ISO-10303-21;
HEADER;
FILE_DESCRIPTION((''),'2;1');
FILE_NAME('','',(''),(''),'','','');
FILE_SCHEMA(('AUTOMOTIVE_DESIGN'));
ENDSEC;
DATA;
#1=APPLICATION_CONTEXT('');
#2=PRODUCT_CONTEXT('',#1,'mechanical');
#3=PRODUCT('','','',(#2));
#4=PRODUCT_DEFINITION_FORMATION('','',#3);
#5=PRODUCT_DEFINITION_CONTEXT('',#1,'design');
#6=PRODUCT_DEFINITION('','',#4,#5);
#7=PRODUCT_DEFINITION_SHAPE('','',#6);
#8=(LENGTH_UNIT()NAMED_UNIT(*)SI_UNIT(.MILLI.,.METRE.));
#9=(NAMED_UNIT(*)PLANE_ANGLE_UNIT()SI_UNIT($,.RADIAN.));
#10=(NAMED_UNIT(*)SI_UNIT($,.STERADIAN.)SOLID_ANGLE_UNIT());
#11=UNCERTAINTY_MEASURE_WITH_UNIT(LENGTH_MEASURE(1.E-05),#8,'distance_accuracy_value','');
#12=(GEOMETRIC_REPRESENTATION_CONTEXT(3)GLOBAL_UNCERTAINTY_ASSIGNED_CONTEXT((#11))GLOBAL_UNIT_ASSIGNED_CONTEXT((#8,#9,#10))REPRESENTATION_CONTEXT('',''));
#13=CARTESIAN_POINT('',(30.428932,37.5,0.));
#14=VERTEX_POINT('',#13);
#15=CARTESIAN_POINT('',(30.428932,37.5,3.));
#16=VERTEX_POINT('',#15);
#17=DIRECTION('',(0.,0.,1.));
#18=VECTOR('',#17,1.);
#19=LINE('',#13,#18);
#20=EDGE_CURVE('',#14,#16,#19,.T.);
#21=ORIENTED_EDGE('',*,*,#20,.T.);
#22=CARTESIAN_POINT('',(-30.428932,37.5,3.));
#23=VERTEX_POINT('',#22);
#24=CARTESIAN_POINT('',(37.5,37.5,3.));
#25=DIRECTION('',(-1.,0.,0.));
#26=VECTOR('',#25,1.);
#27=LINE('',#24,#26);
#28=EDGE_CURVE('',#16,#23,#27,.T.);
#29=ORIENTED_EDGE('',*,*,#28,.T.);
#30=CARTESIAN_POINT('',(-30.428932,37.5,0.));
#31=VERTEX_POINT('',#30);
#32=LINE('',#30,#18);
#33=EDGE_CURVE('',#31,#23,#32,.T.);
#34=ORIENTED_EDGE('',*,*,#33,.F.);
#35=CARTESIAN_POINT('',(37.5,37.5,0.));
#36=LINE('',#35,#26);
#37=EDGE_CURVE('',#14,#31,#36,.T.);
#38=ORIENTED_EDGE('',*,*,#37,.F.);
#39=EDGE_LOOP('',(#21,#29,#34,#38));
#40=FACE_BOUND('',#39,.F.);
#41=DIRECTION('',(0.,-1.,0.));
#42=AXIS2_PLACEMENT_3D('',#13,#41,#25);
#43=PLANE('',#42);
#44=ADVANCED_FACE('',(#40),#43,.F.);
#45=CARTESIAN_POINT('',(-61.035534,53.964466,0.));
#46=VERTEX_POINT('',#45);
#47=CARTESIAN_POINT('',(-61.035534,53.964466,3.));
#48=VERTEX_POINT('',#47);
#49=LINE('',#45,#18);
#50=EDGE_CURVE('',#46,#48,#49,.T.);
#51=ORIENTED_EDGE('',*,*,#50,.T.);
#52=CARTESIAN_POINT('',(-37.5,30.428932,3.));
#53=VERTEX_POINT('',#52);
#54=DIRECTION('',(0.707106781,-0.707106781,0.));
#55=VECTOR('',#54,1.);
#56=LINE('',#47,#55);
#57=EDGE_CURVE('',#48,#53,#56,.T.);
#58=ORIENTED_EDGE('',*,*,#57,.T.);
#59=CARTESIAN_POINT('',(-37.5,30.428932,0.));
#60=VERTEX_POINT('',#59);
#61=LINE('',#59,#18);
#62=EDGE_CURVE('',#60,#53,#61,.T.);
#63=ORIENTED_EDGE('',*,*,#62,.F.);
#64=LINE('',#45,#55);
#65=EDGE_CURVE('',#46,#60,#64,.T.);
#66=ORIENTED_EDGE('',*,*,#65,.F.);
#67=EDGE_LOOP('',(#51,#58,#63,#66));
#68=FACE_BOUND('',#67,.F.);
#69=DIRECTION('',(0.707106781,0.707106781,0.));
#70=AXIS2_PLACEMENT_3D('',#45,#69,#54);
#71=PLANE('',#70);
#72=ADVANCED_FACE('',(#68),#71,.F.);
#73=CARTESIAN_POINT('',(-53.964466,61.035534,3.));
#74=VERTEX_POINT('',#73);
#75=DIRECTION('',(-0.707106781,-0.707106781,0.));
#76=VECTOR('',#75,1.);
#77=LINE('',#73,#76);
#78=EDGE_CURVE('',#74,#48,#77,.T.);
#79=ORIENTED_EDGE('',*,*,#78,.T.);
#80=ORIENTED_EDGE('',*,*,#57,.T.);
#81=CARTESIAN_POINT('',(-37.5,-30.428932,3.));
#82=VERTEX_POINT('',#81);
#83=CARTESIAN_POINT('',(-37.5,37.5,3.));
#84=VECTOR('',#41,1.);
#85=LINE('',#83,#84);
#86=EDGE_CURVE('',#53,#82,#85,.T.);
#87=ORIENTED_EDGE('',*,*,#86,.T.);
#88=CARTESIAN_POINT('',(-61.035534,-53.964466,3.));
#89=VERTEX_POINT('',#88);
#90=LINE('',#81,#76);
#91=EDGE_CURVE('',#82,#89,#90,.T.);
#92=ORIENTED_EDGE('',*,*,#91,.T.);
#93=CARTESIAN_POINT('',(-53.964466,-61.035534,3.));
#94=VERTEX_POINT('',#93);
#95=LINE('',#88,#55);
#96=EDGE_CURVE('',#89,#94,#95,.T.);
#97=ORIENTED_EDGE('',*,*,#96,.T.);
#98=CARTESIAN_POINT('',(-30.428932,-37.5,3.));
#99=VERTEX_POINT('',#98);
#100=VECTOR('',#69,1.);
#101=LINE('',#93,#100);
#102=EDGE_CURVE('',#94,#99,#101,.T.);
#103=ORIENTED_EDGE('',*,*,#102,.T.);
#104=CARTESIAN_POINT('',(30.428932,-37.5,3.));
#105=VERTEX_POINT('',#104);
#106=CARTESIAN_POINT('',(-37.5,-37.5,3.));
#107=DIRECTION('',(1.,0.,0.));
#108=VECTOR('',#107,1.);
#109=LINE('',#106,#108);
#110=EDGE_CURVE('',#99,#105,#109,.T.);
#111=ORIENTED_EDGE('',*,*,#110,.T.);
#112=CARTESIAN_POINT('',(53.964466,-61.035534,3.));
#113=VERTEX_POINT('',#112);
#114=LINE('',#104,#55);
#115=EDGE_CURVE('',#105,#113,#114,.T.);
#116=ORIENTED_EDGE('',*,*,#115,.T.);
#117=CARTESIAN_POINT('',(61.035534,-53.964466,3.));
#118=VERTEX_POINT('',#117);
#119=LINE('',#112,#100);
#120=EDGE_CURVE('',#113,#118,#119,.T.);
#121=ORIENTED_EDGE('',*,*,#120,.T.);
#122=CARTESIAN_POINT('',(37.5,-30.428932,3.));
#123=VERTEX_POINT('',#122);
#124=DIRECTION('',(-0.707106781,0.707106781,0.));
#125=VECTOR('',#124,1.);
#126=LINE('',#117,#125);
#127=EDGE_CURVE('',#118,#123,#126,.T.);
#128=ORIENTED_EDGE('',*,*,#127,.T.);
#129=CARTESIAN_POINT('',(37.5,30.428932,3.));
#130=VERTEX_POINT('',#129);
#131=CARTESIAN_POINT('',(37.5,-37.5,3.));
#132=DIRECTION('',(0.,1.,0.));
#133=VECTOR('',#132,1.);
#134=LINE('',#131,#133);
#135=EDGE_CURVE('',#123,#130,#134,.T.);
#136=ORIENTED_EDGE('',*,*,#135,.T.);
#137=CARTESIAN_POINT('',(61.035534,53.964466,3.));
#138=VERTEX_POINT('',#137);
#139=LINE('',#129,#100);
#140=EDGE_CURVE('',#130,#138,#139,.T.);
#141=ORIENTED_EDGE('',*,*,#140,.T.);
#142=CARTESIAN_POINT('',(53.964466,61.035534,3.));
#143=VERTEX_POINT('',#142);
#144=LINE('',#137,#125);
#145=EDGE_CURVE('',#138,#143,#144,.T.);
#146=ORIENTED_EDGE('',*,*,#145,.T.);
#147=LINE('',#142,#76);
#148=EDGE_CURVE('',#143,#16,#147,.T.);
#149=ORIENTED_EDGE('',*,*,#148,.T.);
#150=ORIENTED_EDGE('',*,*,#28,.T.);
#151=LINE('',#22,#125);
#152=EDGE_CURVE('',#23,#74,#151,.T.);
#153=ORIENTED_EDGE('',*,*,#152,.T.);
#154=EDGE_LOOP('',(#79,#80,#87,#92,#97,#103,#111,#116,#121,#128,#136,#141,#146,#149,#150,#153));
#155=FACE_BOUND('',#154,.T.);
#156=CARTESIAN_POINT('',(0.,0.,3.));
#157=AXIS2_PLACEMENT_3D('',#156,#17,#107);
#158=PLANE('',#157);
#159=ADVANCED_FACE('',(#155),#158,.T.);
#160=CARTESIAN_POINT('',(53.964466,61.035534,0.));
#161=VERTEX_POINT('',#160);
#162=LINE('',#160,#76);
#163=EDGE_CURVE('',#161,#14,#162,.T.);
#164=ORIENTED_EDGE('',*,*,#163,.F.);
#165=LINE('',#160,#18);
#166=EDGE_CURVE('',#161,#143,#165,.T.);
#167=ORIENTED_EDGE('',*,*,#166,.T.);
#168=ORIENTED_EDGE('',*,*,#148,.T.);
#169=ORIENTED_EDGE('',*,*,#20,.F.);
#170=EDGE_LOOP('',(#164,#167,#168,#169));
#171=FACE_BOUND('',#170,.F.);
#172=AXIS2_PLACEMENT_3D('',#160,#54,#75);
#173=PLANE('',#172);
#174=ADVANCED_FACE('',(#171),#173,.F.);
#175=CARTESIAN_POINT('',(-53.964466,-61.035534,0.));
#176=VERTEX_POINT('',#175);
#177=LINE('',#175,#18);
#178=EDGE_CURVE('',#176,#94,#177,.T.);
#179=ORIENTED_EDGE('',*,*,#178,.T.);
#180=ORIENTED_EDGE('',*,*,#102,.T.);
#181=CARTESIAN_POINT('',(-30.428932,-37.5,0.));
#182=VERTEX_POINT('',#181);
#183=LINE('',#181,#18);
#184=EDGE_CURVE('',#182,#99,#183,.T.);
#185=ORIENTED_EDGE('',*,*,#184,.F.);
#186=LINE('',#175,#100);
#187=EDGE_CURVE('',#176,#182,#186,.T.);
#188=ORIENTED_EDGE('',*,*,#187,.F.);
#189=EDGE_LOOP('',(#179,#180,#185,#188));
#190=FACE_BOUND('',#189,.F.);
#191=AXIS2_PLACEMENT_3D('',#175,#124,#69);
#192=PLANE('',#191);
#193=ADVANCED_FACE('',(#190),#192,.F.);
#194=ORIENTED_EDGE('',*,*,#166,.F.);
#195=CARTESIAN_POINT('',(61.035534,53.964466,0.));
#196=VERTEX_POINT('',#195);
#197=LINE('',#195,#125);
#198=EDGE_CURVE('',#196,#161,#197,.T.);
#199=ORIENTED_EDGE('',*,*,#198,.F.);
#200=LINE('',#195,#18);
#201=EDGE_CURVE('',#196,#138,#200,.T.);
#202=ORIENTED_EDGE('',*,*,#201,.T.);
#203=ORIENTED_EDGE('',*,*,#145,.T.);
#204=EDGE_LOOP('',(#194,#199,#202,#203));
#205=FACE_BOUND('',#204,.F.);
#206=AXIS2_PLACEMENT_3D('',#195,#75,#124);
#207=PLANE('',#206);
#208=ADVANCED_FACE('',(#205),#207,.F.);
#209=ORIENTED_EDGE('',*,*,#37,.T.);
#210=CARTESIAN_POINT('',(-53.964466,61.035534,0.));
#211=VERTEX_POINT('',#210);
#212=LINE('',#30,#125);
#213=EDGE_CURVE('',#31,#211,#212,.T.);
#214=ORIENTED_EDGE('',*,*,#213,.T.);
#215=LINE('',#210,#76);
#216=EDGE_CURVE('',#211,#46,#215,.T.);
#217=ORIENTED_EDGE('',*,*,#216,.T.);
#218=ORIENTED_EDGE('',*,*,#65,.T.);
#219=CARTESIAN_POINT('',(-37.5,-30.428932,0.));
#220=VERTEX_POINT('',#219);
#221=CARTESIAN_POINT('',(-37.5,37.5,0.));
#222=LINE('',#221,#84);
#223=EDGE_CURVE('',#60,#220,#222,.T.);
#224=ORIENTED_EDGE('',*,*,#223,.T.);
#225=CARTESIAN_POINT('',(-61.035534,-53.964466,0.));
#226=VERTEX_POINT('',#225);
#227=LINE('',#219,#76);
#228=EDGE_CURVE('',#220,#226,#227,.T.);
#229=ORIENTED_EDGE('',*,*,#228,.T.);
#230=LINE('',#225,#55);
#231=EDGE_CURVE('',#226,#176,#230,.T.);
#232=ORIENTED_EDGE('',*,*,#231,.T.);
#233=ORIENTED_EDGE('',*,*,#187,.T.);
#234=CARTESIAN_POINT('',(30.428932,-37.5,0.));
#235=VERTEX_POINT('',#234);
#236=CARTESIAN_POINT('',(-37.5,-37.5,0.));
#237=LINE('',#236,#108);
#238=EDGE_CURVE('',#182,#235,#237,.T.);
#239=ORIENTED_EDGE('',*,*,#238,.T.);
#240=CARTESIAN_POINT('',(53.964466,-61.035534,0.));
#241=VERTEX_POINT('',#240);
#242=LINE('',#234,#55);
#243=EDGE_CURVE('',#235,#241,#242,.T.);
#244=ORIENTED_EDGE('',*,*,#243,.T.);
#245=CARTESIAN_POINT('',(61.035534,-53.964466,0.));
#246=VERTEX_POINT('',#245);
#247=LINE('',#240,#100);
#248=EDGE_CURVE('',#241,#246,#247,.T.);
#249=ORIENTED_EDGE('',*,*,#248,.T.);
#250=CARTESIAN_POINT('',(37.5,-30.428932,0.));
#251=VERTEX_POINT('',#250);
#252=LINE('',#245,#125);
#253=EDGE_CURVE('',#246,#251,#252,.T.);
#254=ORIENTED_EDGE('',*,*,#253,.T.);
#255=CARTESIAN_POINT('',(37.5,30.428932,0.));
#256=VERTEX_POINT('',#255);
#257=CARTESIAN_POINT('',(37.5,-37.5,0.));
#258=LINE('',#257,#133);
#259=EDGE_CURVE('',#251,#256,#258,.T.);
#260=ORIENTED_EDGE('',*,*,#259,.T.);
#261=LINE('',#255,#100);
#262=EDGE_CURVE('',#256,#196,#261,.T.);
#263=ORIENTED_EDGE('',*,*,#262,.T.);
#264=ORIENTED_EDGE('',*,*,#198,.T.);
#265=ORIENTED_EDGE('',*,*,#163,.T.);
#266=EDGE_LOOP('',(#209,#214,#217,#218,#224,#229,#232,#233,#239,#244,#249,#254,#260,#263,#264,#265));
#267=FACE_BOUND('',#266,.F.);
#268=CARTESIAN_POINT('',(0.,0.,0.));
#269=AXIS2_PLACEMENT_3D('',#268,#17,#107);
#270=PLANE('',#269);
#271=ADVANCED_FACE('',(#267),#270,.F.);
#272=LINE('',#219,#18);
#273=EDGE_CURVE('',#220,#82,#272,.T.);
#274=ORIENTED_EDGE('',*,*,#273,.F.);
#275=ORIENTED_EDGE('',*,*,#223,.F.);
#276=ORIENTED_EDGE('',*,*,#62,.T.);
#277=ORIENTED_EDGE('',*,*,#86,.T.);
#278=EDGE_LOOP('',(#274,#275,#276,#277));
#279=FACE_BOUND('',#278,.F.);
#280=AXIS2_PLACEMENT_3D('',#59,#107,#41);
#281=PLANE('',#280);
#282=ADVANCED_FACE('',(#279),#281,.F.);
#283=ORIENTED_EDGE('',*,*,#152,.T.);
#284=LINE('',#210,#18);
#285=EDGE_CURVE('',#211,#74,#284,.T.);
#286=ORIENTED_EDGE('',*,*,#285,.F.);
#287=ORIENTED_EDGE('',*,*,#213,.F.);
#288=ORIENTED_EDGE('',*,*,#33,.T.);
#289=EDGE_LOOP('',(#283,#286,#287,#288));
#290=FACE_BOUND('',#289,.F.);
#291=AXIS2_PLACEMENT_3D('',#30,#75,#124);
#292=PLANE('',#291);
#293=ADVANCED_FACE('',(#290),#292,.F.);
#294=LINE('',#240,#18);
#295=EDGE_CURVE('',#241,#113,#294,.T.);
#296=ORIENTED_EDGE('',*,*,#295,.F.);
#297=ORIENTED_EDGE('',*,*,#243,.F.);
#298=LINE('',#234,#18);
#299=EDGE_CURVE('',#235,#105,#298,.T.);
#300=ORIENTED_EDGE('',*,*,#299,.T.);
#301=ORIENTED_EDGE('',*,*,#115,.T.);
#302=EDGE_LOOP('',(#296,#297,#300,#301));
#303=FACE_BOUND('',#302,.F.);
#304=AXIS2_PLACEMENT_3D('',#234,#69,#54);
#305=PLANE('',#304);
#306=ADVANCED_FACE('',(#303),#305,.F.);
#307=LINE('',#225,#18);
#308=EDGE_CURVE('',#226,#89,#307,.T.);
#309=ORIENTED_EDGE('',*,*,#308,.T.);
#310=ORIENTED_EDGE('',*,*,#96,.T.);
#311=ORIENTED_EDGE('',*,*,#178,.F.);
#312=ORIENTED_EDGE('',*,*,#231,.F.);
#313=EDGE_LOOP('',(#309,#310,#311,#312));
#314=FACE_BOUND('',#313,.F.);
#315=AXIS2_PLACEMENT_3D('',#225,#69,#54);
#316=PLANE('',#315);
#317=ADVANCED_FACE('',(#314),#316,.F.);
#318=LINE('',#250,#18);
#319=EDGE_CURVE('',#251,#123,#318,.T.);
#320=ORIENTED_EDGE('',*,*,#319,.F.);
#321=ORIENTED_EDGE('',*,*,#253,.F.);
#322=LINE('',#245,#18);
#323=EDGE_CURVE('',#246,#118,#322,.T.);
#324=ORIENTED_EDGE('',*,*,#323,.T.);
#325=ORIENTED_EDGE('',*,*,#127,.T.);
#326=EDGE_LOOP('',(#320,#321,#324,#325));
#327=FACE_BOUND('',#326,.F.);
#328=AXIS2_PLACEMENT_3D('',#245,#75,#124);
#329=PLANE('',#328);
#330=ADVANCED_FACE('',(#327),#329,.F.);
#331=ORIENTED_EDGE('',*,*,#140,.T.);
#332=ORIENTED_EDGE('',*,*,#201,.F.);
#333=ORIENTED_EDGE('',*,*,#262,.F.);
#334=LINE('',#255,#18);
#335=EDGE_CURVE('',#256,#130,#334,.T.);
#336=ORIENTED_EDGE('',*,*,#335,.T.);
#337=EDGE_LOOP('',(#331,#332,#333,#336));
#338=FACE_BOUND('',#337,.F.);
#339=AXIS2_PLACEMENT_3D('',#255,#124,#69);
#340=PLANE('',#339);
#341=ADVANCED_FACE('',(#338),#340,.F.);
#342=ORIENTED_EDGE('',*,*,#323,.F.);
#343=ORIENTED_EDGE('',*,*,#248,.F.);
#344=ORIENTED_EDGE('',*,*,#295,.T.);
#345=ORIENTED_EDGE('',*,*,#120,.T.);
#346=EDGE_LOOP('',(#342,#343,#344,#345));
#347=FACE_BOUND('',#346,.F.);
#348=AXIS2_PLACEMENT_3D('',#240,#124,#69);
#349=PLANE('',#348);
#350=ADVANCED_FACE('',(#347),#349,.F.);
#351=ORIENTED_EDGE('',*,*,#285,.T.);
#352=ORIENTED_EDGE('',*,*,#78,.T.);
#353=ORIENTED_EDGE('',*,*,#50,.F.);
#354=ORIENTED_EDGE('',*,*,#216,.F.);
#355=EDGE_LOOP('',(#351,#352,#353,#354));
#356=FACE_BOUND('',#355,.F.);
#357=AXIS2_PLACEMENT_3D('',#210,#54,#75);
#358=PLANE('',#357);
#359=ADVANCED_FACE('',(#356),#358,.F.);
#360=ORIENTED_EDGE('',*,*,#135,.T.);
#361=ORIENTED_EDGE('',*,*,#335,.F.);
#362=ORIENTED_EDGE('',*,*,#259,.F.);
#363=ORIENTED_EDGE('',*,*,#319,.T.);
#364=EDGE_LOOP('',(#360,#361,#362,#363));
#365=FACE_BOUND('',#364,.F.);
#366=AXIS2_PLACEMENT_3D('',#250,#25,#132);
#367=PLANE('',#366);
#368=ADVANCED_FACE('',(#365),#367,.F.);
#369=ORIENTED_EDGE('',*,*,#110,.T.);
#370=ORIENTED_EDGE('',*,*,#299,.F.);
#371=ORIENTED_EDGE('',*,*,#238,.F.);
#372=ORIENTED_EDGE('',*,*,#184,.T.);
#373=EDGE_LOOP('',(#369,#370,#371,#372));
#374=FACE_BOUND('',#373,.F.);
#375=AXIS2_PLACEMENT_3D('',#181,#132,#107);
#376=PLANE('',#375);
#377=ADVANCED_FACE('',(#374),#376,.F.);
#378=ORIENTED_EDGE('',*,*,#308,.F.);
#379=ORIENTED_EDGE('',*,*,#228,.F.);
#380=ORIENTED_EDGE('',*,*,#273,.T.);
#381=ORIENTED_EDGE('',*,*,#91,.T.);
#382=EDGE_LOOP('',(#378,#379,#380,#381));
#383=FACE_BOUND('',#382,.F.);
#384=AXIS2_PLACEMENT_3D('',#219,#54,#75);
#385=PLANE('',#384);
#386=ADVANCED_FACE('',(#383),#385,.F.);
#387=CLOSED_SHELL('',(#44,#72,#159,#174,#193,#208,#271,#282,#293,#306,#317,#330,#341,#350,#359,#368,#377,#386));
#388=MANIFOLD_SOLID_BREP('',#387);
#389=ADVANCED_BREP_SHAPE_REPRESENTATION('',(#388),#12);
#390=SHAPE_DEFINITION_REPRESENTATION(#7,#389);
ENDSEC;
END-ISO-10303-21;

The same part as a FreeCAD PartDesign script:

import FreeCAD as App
import Part
import Sketcher

V = App.Vector
Q = App.Units.Quantity


def add_polygon(sketch, points):
    """Adds a closed chain of lines whose ends are joined by coincident constraints."""
    first, n = sketch.GeometryCount, len(points)
    for a, b in zip(points, points[1:] + points[:1]):
        sketch.addGeometry(Part.LineSegment(App.Vector(*a, 0), App.Vector(*b, 0)), False)
    for i in range(n):
        sketch.addConstraint(Sketcher.Constraint("Coincident", first + i, 2, first + (i + 1) % n, 1))

doc = App.newDocument("Part")
body = doc.addObject("PartDesign::Body", "Body")

sketch1 = body.newObject("Sketcher::SketchObject", "Sketch")
sketch1.AttachmentSupport = (doc.getObject("XY_Plane"), [""])
sketch1.MapMode = "FlatFace"
add_polygon(sketch1, [(-30, -38), (30, -38), (54, -61), (61, -54), (38, -30), (38, 30), (61, 54), (54, 61), (30, 38), (-30, 38), (-54, 61), (-61, 54), (-38, 30), (-38, -30), (-61, -54), (-54, -61)])
sketch1.addConstraint(Sketcher.Constraint("Horizontal", 0))
sketch1.addConstraint(Sketcher.Constraint("Vertical", 4))
sketch1.addConstraint(Sketcher.Constraint("Horizontal", 8))
sketch1.addConstraint(Sketcher.Constraint("Vertical", 12))
sketch1.addConstraint(Sketcher.Constraint("Symmetric", 0, 2, 8, 2, -1, 1))
sketch1.addConstraint(Sketcher.Constraint("Symmetric", 1, 2, 9, 2, -1, 1))
sketch1.addConstraint(Sketcher.Constraint("Symmetric", 2, 2, 10, 2, -1, 1))
sketch1.addConstraint(Sketcher.Constraint("Symmetric", 3, 2, 11, 2, -1, 1))
sketch1.addConstraint(Sketcher.Constraint("Symmetric", 5, 2, 13, 2, -1, 1))
sketch1.addConstraint(Sketcher.Constraint("Symmetric", 6, 2, 14, 2, -1, 1))
sketch1.addConstraint(Sketcher.Constraint("Symmetric", 6, 2, 9, 2, -2))
sketch1.addConstraint(Sketcher.Constraint("Symmetric", 5, 2, 10, 2, -2))
sketch1.addConstraint(Sketcher.Constraint("Perpendicular", 1, 2))
sketch1.addConstraint(Sketcher.Constraint("Perpendicular", 2, 3))
sketch1.addConstraint(Sketcher.Constraint("Perpendicular", 3, 5))
sketch1.addConstraint(Sketcher.Constraint("Perpendicular", 5, 6))
sketch1.addConstraint(Sketcher.Constraint("Perpendicular", 6, 7))
sketch1.addConstraint(Sketcher.Constraint("Perpendicular", 11, 13))
sketch1.addConstraint(Sketcher.Constraint("Perpendicular", 14, 15))
sketch1.addConstraint(Sketcher.Constraint("Equal", 8, 4))
sketch1.addConstraint(Sketcher.Constraint("Equal", 1, 3))
sketch1.addConstraint(Sketcher.Constraint("Distance", 2, Q("10 mm")))
sketch1.addConstraint(Sketcher.Constraint("DistanceY", 1, 2, 5, 2, Q("115 mm")))
sketch1.addConstraint(Sketcher.Constraint("DistanceY", 0, 2, 7, 2, Q("75 mm")))
pad1 = body.newObject("PartDesign::Pad", "Pad")
pad1.Profile = sketch1
pad1.Length = 3

doc.recompute()
